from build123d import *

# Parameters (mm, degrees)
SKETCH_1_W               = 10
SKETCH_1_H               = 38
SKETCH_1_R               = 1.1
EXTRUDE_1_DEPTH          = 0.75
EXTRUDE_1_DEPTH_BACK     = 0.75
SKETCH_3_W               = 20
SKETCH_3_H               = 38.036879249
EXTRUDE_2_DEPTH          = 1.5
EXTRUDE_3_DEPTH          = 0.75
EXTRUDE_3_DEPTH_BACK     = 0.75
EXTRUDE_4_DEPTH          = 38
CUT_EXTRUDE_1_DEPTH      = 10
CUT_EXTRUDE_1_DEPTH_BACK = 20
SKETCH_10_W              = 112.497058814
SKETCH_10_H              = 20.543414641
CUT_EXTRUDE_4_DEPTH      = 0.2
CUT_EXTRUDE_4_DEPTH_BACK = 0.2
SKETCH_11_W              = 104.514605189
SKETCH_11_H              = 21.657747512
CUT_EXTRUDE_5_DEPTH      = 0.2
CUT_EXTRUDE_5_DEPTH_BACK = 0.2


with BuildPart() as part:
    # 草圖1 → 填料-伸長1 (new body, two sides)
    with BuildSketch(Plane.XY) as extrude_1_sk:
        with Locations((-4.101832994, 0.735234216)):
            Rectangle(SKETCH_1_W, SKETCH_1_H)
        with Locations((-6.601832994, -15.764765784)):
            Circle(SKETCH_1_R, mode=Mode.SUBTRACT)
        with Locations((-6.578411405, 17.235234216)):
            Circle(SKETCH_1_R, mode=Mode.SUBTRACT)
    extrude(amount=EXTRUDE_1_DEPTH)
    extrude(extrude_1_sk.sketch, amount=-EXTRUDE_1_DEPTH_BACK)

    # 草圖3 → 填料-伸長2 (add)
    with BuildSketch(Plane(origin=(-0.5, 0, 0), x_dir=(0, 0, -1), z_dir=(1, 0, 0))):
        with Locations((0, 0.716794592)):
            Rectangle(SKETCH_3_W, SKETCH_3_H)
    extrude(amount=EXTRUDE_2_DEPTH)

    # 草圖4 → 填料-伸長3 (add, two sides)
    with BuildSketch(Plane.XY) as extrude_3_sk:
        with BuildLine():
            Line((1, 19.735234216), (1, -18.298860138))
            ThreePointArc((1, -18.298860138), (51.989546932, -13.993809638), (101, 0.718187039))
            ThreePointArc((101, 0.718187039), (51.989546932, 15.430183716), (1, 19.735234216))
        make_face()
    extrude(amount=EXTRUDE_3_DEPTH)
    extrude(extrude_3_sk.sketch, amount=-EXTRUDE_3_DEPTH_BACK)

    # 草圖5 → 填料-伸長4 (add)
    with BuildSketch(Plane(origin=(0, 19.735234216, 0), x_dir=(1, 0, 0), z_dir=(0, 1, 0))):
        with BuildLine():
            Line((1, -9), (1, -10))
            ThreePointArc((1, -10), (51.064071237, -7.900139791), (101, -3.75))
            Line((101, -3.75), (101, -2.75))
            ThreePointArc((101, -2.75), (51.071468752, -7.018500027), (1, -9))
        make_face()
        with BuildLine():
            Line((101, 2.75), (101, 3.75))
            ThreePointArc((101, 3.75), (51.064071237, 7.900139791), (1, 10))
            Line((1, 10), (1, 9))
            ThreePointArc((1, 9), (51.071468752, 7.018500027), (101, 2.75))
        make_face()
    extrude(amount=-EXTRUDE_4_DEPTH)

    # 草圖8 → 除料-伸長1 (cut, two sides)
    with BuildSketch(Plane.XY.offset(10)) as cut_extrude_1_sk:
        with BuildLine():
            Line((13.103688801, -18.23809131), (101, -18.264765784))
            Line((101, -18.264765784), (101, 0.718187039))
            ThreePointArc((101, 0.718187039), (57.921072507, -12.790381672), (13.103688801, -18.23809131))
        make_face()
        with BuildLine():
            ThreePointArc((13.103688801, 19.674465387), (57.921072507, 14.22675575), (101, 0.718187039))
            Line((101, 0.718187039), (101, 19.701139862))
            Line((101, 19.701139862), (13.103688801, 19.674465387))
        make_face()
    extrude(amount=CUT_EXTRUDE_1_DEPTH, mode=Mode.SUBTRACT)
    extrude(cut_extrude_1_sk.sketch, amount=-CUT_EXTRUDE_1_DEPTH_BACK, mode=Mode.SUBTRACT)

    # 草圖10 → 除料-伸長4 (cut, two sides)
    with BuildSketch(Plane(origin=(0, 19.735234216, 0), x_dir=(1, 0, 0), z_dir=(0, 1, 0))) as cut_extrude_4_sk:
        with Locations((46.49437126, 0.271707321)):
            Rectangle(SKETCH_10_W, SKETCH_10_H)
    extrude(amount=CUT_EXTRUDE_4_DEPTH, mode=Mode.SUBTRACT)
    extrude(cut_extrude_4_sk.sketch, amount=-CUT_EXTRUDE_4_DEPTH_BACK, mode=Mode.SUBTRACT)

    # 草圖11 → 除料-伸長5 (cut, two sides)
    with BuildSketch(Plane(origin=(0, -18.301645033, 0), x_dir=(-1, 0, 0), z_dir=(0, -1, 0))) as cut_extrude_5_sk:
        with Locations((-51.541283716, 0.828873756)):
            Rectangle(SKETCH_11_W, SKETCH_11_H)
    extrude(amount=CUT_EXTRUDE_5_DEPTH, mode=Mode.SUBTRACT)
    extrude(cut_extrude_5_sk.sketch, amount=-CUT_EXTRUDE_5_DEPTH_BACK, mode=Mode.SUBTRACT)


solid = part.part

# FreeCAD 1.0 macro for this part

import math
import FreeCAD as App
import Part
import Sketcher
from FreeCAD import Vector

doc = App.newDocument("Part")
body = doc.addObject("PartDesign::Body", "Body")

# Sketch on XY plane
sketch1 = body.newObject("Sketcher::SketchObject", "Sketch")
sketch1.AttachmentSupport = (doc.getObject("XY_Plane"), [""])
sketch1.MapMode = "FlatFace"
sketch1.addGeometry([
    Part.LineSegment(Vector(-9.1, 19.7, 0), Vector(-9.1, -18.3, 0)),  # 0
    Part.LineSegment(Vector(-9.1, -18.3, 0), Vector(0.9, -18.3, 0)),  # 1
    Part.LineSegment(Vector(0.9, -18.3, 0), Vector(0.9, 19.7, 0)),  # 2
    Part.LineSegment(Vector(0.9, 19.7, 0), Vector(-9.1, 19.7, 0)),  # 3
    Part.Circle(Vector(-6.6, -15.8, 0), Vector(0, 0, 1), 1.1),  # 4
    Part.Circle(Vector(-6.6, 17.2, 0), Vector(0, 0, 1), 1.1),  # 5
], False)
sketch1.addConstraint([
    Sketcher.Constraint("Coincident", 0, 2, 1, 1),
    Sketcher.Constraint("Coincident", 1, 2, 2, 1),
    Sketcher.Constraint("Coincident", 2, 2, 3, 1),
    Sketcher.Constraint("Coincident", 3, 2, 0, 1),
    Sketcher.Constraint("Vertical", 0),
    Sketcher.Constraint("Horizontal", 1),
    Sketcher.Constraint("Vertical", 2),
    Sketcher.Constraint("Horizontal", 3),
    Sketcher.Constraint("Equal", 4, 5),
    Sketcher.Constraint("Diameter", 4, 2.2),
    Sketcher.Constraint("DistanceX", 1, 1, 1, 2, 10.0),
    Sketcher.Constraint("DistanceY", 0, 2, 0, 1, 38.0),
    Sketcher.Constraint("DistanceY", 4, 3, 5, 3, 33.0),
    Sketcher.Constraint("DistanceX", 0, 2, 4, 3, 2.5),
    Sketcher.Constraint("DistanceY", 0, 2, 4, 3, 2.5),
    Sketcher.Constraint("DistanceX", 5, 3, -1, 1, 6.578411),
    Sketcher.Constraint("DistanceX", 4, 3, 5, 3, 0.023422),
    Sketcher.Constraint("DistanceY", 4, 3, -1, 1, 15.764766),
])
pad1 = body.newObject("PartDesign::Pad", "Pad")
pad1.Profile = sketch1
pad1.Type = "TwoLengths"
pad1.Length = 0.75
pad1.Length2 = 0.75

# Sketch on YZ plane
sketch2 = body.newObject("Sketcher::SketchObject", "Sketch001")
sketch2.AttachmentSupport = (doc.getObject("YZ_Plane"), [""])
sketch2.MapMode = "FlatFace"
sketch2.AttachmentOffset = App.Placement(Vector(0, 0, -0.5), App.Rotation())
sketch2.addGeometry([
    Part.LineSegment(Vector(20, 10, 0), Vector(-18, 10, 0)),
    Part.LineSegment(Vector(-18, 10, 0), Vector(-18, -10, 0)),
    Part.LineSegment(Vector(-18, -10, 0), Vector(20, -10, 0)),
    Part.LineSegment(Vector(20, -10, 0), Vector(20, 10, 0)),
], False)
sketch2.addConstraint([
    Sketcher.Constraint("Coincident", 0, 2, 1, 1),
    Sketcher.Constraint("Coincident", 1, 2, 2, 1),
    Sketcher.Constraint("Coincident", 2, 2, 3, 1),
    Sketcher.Constraint("Coincident", 3, 2, 0, 1),
    Sketcher.Constraint("Horizontal", 0),
    Sketcher.Constraint("Vertical", 1),
    Sketcher.Constraint("Horizontal", 2),
    Sketcher.Constraint("Vertical", 3),
    Sketcher.Constraint("DistanceY", 1, 2, 1, 1, 20.0),
    Sketcher.Constraint("DistanceY", -1, 1, 0, 2, 10.0),
    Sketcher.Constraint("DistanceX", 0, 2, 0, 1, 38.036879),
    Sketcher.Constraint("DistanceX", 0, 2, -1, 1, 18.301645),
])
pad2 = body.newObject("PartDesign::Pad", "Pad001")
pad2.Profile = sketch2
pad2.Length = 1.5

# Sketch on XY plane
sketch3 = body.newObject("Sketcher::SketchObject", "Sketch002")
sketch3.AttachmentSupport = (doc.getObject("XY_Plane"), [""])
sketch3.MapMode = "FlatFace"
sketch3.addGeometry([
    Part.LineSegment(Vector(1, 20, 0), Vector(1, -18, 0)),
    Part.ArcOfCircle(Part.Circle(Vector(6, 229, 0), Vector(0, 0, 1), 247), math.radians(-91), math.radians(-67)),
    Part.ArcOfCircle(Part.Circle(Vector(6, -227, 0), Vector(0, 0, 1), 247), math.radians(67), math.radians(91)),
], False)
sketch3.addConstraint([
    Sketcher.Constraint("Coincident", 0, 2, 1, 1),
    Sketcher.Constraint("Coincident", 1, 2, 2, 1),
    Sketcher.Constraint("Coincident", 2, 2, 0, 1),
    Sketcher.Constraint("Vertical", 0),
    Sketcher.Constraint("Equal", 1, 2),
    Sketcher.Constraint("Vertical", 1, 3, 2, 3),
    Sketcher.Constraint("DistanceX", -1, 1, 0, 2, 1.0),
    Sketcher.Constraint("DistanceX", -1, 1, 1, 2, 101.0),
    Sketcher.Constraint("Radius", 1, 247.177785),
    Sketcher.Constraint("DistanceY", 0, 2, 0, 1, 38.034094),
    Sketcher.Constraint("DistanceY", 0, 2, -1, 1, 18.29886),
])
pad3 = body.newObject("PartDesign::Pad", "Pad002")
pad3.Profile = sketch3
pad3.Type = "TwoLengths"
pad3.Length = 0.75
pad3.Length2 = 0.75

# Sketch on XZ plane
sketch4 = body.newObject("Sketcher::SketchObject", "Sketch003")
sketch4.AttachmentSupport = (doc.getObject("XZ_Plane"), [""])
sketch4.MapMode = "FlatFace"
sketch4.AttachmentOffset = App.Placement(Vector(0, 0, -19.735234), App.Rotation())
sketch4.addGeometry([
    Part.LineSegment(Vector(1, 9, 0), Vector(1, 10, 0)),  # 0
    Part.ArcOfCircle(Part.Circle(Vector(-25.2, -1212, 0), Vector(0, 0, 1), 1222.2), math.radians(84.07), math.radians(88.77)),  # 1
    Part.LineSegment(Vector(101, 3.8, 0), Vector(101, 2.8, 0)),  # 2
    Part.ArcOfCircle(Part.Circle(Vector(-17.3, -1086.7, 0), Vector(0, 0, 1), 1095.8), math.radians(83.8), math.radians(89.04)),  # 3
    Part.LineSegment(Vector(101, -2.8, 0), Vector(101, -3.8, 0)),  # 4
    Part.ArcOfCircle(Part.Circle(Vector(-25.2, 1212, 0), Vector(0, 0, 1), 1222.2), math.radians(-88.77), math.radians(-84.07)),  # 5
    Part.LineSegment(Vector(1, -10, 0), Vector(1, -9, 0)),  # 6
    Part.ArcOfCircle(Part.Circle(Vector(-17.3, 1086.7, 0), Vector(0, 0, 1), 1095.8), math.radians(-89.04), math.radians(-83.8)),  # 7
], False)
sketch4.addConstraint([
    Sketcher.Constraint("Coincident", 0, 2, 1, 2),
    Sketcher.Constraint("Coincident", 1, 1, 2, 1),
    Sketcher.Constraint("Coincident", 2, 2, 3, 1),
    Sketcher.Constraint("Coincident", 3, 2, 0, 1),
    Sketcher.Constraint("Coincident", 4, 2, 5, 2),
    Sketcher.Constraint("Coincident", 5, 1, 6, 1),
    Sketcher.Constraint("Coincident", 6, 2, 7, 1),
    Sketcher.Constraint("Coincident", 7, 2, 4, 1),
    Sketcher.Constraint("Vertical", 0),
    Sketcher.Constraint("Vertical", 2),
    Sketcher.Constraint("Vertical", 4),
    Sketcher.Constraint("Vertical", 6),
    Sketcher.Constraint("Equal", 1, 5),
    Sketcher.Constraint("Equal", 3, 7),
    Sketcher.Constraint("Symmetric", 1, 3, 5, 3, -1),
    Sketcher.Constraint("Symmetric", 3, 3, 7, 3, -1),
    Sketcher.Constraint("Vertical", 2, 2, 4, 2),
    Sketcher.Constraint("Equal", 0, 2),
    Sketcher.Constraint("Equal", 4, 6),
    Sketcher.Constraint("DistanceY", 0, 1, 0, 2, 1.0),
    Sketcher.Constraint("DistanceX", -1, 1, 0, 2, 1.0),
    Sketcher.Constraint("DistanceY", -1, 1, 0, 2, 10.0),
    Sketcher.Constraint("DistanceX", -1, 1, 2, 2, 101.0),
    Sketcher.Constraint("Radius", 3, 1095.8409),
    Sketcher.Constraint("DistanceY", 4, 2, 2, 2, 6.5),
    Sketcher.Constraint("Radius", 1, 1222.238683),
])
pad4 = body.newObject("PartDesign::Pad", "Pad003")
pad4.Profile = sketch4
pad4.Length = 38

# Sketch on XY plane
sketch5 = body.newObject("Sketcher::SketchObject", "Sketch004")
sketch5.AttachmentSupport = (doc.getObject("XY_Plane"), [""])
sketch5.MapMode = "FlatFace"
sketch5.AttachmentOffset = App.Placement(Vector(0, 0, 10), App.Rotation())
sketch5.addGeometry([
    Part.LineSegment(Vector(13, -18, 0), Vector(101, -18, 0)),  # 0
    Part.LineSegment(Vector(101, -18, 0), Vector(101, 1, 0)),  # 1
    Part.ArcOfCircle(Part.Circle(Vector(6, 229, 0), Vector(0, 0, 1), 247), math.radians(-88), math.radians(-67)),  # 2
    Part.ArcOfCircle(Part.Circle(Vector(6, -227, 0), Vector(0, 0, 1), 247), math.radians(67), math.radians(88)),  # 3
    Part.LineSegment(Vector(101, 1, 0), Vector(101, 20, 0)),  # 4
    Part.LineSegment(Vector(101, 20, 0), Vector(13, 20, 0)),  # 5
], False)
sketch5.addConstraint([
    Sketcher.Constraint("Coincident", 0, 2, 1, 1),
    Sketcher.Constraint("Coincident", 1, 2, 2, 2),
    Sketcher.Constraint("Coincident", 2, 1, 0, 1),
    Sketcher.Constraint("Coincident", 3, 1, 4, 1),
    Sketcher.Constraint("Coincident", 4, 2, 5, 1),
    Sketcher.Constraint("Coincident", 5, 2, 3, 2),
    Sketcher.Constraint("Vertical", 1),
    Sketcher.Constraint("Vertical", 4),
    Sketcher.Constraint("Coincident", 3, 1, 1, 2),
    Sketcher.Constraint("Equal", 2, 3),
    Sketcher.Constraint("Vertical", 2, 3, 3, 3),
    Sketcher.Constraint("Vertical", 2, 1, 5, 2),
    Sketcher.Constraint("Equal", 1, 4),
    Sketcher.Constraint("DistanceX", -1, 1, 0, 2, 101.0),
    Sketcher.Constraint("Radius", 2, 247.177785),
    Sketcher.Constraint("DistanceY", 1, 1, 1, 2, 18.982953),
    Sketcher.Constraint("DistanceX", -1, 1, 2, 3, 5.81123),
    Sketcher.Constraint("DistanceX", -1, 1, 2, 1, 13.103689),
    Sketcher.Constraint("DistanceY", 2, 1, -1, 1, 18.238091),
])
pocket1 = body.newObject("PartDesign::Pocket", "Pocket")
pocket1.Profile = sketch5
pocket1.Type = "ThroughAll"
pocket1.Midplane = True

# Sketch on XZ plane
sketch6 = body.newObject("Sketcher::SketchObject", "Sketch005")
sketch6.AttachmentSupport = (doc.getObject("XZ_Plane"), [""])
sketch6.MapMode = "FlatFace"
sketch6.AttachmentOffset = App.Placement(Vector(0, 0, -19.735234), App.Rotation())
sketch6.addGeometry([
    Part.LineSegment(Vector(-10, -11, 0), Vector(-10, 10, 0)),
    Part.LineSegment(Vector(-10, 10, 0), Vector(103, 10, 0)),
    Part.LineSegment(Vector(103, 10, 0), Vector(103, -11, 0)),
    Part.LineSegment(Vector(103, -11, 0), Vector(-10, -11, 0)),
], False)
sketch6.addConstraint([
    Sketcher.Constraint("Coincident", 0, 2, 1, 1),
    Sketcher.Constraint("Coincident", 1, 2, 2, 1),
    Sketcher.Constraint("Coincident", 2, 2, 3, 1),
    Sketcher.Constraint("Coincident", 3, 2, 0, 1),
    Sketcher.Constraint("Vertical", 0),
    Sketcher.Constraint("Horizontal", 1),
    Sketcher.Constraint("Vertical", 2),
    Sketcher.Constraint("Horizontal", 3),
    Sketcher.Constraint("DistanceY", -1, 1, 0, 2, 10.0),
    Sketcher.Constraint("DistanceX", 1, 1, 1, 2, 112.497059),
    Sketcher.Constraint("DistanceX", -1, 1, 1, 2, 102.742901),
    Sketcher.Constraint("DistanceY", 0, 1, 0, 2, 20.543415),
])
pocket2 = body.newObject("PartDesign::Pocket", "Pocket001")
pocket2.Profile = sketch6
pocket2.Type = "TwoLengths"
pocket2.Length = 0.2
pocket2.Length2 = 0.2

# Sketch on XZ plane
sketch7 = body.newObject("Sketcher::SketchObject", "Sketch006")
sketch7.AttachmentSupport = (doc.getObject("XZ_Plane"), [""])
sketch7.MapMode = "FlatFace"
sketch7.AttachmentOffset = App.Placement(Vector(0, 0, 18.301645), App.Rotation())
sketch7.addGeometry([
    Part.LineSegment(Vector(104, -12, 0), Vector(104, 10, 0)),
    Part.LineSegment(Vector(104, 10, 0), Vector(-1, 10, 0)),
    Part.LineSegment(Vector(-1, 10, 0), Vector(-1, -12, 0)),
    Part.LineSegment(Vector(-1, -12, 0), Vector(104, -12, 0)),
], False)
sketch7.addConstraint([
    Sketcher.Constraint("Coincident", 0, 2, 1, 1),
    Sketcher.Constraint("Coincident", 1, 2, 2, 1),
    Sketcher.Constraint("Coincident", 2, 2, 3, 1),
    Sketcher.Constraint("Coincident", 3, 2, 0, 1),
    Sketcher.Constraint("Vertical", 0),
    Sketcher.Constraint("Horizontal", 1),
    Sketcher.Constraint("Vertical", 2),
    Sketcher.Constraint("Horizontal", 3),
    Sketcher.Constraint("DistanceY", -1, 1, 0, 2, 10.0),
    Sketcher.Constraint("DistanceX", 1, 2, 1, 1, 104.514605),
    Sketcher.Constraint("DistanceY", 0, 1, 0, 2, 21.657748),
    Sketcher.Constraint("DistanceX", 1, 2, -1, 1, 0.716019),
])
pocket3 = body.newObject("PartDesign::Pocket", "Pocket002")
pocket3.Profile = sketch7
pocket3.Type = "TwoLengths"
pocket3.Length = 0.2
pocket3.Length2 = 0.2
pocket3.Reversed = True

doc.recompute()
